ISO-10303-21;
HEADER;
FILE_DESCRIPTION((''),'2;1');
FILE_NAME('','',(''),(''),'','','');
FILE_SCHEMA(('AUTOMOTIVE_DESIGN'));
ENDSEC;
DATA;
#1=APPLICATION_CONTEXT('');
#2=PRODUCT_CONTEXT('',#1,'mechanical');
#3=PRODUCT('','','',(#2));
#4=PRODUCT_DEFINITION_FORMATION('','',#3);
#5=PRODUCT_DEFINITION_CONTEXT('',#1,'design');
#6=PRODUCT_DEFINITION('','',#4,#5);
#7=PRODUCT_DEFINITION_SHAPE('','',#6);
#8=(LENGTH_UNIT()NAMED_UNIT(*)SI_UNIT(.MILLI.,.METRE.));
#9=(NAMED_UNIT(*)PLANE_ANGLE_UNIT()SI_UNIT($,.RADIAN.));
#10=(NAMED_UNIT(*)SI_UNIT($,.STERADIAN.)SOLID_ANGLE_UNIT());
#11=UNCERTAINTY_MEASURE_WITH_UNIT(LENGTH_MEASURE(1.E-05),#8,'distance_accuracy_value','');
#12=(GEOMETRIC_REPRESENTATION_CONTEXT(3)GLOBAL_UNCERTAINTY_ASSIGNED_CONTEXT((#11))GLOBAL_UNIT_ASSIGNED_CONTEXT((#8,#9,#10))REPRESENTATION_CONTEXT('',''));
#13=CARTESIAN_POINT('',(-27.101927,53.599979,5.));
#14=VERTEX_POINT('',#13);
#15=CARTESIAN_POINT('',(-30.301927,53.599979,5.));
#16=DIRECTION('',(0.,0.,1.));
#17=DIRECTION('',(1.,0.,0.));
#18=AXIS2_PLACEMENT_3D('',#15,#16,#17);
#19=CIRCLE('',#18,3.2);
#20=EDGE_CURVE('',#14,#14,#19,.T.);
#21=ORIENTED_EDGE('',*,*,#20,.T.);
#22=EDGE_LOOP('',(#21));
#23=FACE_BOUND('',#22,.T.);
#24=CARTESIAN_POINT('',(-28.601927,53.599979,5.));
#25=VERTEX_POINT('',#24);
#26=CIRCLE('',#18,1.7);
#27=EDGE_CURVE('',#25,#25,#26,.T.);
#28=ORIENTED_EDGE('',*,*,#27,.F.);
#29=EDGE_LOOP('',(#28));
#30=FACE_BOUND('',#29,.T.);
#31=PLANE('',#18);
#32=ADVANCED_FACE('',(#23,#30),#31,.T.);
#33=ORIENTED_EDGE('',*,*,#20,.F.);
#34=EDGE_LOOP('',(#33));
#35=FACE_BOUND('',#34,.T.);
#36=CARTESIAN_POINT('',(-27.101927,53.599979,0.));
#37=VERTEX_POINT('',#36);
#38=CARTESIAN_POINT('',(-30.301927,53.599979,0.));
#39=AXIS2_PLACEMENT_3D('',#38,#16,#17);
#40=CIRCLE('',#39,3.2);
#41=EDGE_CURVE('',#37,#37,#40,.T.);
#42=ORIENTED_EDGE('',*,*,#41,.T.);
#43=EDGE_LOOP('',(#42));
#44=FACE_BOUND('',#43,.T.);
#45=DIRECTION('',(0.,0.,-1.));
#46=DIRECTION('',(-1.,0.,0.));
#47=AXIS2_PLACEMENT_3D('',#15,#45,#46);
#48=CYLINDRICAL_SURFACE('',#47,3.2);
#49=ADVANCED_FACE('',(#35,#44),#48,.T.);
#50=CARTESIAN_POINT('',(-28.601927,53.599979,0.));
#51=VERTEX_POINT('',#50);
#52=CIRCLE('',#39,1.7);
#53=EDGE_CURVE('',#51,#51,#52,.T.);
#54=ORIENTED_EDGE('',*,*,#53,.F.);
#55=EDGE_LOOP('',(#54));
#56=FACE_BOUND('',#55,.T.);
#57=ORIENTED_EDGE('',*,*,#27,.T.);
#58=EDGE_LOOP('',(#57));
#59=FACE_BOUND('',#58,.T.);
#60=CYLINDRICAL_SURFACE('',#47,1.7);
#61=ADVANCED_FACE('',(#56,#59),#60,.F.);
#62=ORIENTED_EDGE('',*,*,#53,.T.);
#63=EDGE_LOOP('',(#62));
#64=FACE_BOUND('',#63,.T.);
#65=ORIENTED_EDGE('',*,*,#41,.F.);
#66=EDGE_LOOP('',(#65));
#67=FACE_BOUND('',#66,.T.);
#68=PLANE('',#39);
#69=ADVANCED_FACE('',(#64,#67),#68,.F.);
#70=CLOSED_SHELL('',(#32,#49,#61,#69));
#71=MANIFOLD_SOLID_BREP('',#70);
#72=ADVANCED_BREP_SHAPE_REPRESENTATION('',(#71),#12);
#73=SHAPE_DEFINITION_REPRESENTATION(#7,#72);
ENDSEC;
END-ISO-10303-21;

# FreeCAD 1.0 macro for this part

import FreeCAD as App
import Part
import Sketcher

V = App.Vector
Q = App.Units.Quantity

doc = App.newDocument("Part")
body = doc.addObject("PartDesign::Body", "Body")

# Sketch on XY plane
sketch1 = body.newObject("Sketcher::SketchObject", "Sketch")
sketch1.AttachmentSupport = (doc.getObject("XY_Plane"), [""])
sketch1.MapMode = "FlatFace"
sketch1.addGeometry([
    Part.Circle(V(-30.3, 53.6, 0), V(0, 0, 1), 3.2),
    Part.Circle(V(-30.3, 53.6, 0), V(0, 0, 1), 1.7),
], False)
sketch1.addConstraint([
    Sketcher.Constraint("Coincident", 1, 3, 0, 3),
    Sketcher.Constraint("Diameter", 0, Q("6.4 mm")),
    Sketcher.Constraint("Diameter", 1, Q("3.4 mm")),
    Sketcher.Constraint("DistanceY", -1, 1, 0, 3, Q("53.599979 mm")),
    Sketcher.Constraint("DistanceX", 0, 3, -1, 1, Q("30.301927 mm")),
])
pad1 = body.newObject("PartDesign::Pad", "Pad")
pad1.Profile = sketch1
pad1.Length = 5

doc.recompute()
